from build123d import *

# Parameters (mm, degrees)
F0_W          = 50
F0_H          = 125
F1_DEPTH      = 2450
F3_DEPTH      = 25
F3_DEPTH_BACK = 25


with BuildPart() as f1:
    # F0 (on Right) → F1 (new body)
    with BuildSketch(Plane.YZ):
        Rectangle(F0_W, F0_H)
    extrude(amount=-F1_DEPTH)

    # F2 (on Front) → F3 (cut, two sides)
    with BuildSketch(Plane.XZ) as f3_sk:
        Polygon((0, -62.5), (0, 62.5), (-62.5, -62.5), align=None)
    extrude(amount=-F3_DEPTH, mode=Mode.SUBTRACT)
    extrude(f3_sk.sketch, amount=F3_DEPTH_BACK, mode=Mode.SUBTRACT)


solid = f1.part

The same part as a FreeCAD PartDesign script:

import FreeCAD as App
import Part
import Sketcher

V = App.Vector
Q = App.Units.Quantity


def add_polygon(sketch, points):
    """Adds a closed chain of lines whose ends are joined by coincident constraints."""
    first, n = sketch.GeometryCount, len(points)
    for a, b in zip(points, points[1:] + points[:1]):
        sketch.addGeometry(Part.LineSegment(App.Vector(*a, 0), App.Vector(*b, 0)), False)
    for i in range(n):
        sketch.addConstraint(Sketcher.Constraint("Coincident", first + i, 2, first + (i + 1) % n, 1))

doc = App.newDocument("Part")
body = doc.addObject("PartDesign::Body", "Body")

# Sketch on YZ plane
sketch1 = doc.addObject("Sketcher::SketchObject", "Sketch")
body.addObject(sketch1)
sketch1.AttachmentSupport = (doc.YZ_Plane, [""])
sketch1.MapMode = "FlatFace"
add_polygon(sketch1, [(-25, 62), (-25, -62), (25, -62), (25, 62)])  # lines 0-3
sketch1.addConstraint(Sketcher.Constraint("Vertical", 0))
sketch1.addConstraint(Sketcher.Constraint("Horizontal", 1))
sketch1.addConstraint(Sketcher.Constraint("Vertical", 2))
sketch1.addConstraint(Sketcher.Constraint("Horizontal", 3))
sketch1.addConstraint(Sketcher.Constraint("Symmetric", 0, 2, 2, 2, -1, 1))
sketch1.addConstraint(Sketcher.Constraint("DistanceX", 1, 1, 1, 2, Q("50 mm")))
sketch1.addConstraint(Sketcher.Constraint("DistanceY", 0, 2, 0, 1, Q("125 mm")))
pad1 = doc.addObject("PartDesign::Pad", "Pad")
body.addObject(pad1)
pad1.Profile = sketch1
pad1.Length = 2450
pad1.Reversed = True

# Sketch on XZ plane
sketch2 = doc.addObject("Sketcher::SketchObject", "Sketch001")
body.addObject(sketch2)
sketch2.AttachmentSupport = (doc.XZ_Plane, [""])
sketch2.MapMode = "FlatFace"
add_polygon(sketch2, [(0, -62), (0, 62), (-62, -62)])  # lines 0-2
sketch2.addConstraint(Sketcher.Constraint("Vertical", 0))
sketch2.addConstraint(Sketcher.Constraint("Horizontal", 2))
sketch2.addConstraint(Sketcher.Constraint("Symmetric", 0, 2, 2, 2, -1, 1))
sketch2.addConstraint(Sketcher.Constraint("DistanceY", 0, 1, 0, 2, Q("125 mm")))
sketch2.addConstraint(Sketcher.Constraint("DistanceX", 2, 1, 2, 2, Q("62.5 mm")))
pocket1 = doc.addObject("PartDesign::Pocket", "Pocket")
body.addObject(pocket1)
pocket1.Profile = sketch2
pocket1.Type = "ThroughAll"
pocket1.Midplane = True

doc.recompute()
